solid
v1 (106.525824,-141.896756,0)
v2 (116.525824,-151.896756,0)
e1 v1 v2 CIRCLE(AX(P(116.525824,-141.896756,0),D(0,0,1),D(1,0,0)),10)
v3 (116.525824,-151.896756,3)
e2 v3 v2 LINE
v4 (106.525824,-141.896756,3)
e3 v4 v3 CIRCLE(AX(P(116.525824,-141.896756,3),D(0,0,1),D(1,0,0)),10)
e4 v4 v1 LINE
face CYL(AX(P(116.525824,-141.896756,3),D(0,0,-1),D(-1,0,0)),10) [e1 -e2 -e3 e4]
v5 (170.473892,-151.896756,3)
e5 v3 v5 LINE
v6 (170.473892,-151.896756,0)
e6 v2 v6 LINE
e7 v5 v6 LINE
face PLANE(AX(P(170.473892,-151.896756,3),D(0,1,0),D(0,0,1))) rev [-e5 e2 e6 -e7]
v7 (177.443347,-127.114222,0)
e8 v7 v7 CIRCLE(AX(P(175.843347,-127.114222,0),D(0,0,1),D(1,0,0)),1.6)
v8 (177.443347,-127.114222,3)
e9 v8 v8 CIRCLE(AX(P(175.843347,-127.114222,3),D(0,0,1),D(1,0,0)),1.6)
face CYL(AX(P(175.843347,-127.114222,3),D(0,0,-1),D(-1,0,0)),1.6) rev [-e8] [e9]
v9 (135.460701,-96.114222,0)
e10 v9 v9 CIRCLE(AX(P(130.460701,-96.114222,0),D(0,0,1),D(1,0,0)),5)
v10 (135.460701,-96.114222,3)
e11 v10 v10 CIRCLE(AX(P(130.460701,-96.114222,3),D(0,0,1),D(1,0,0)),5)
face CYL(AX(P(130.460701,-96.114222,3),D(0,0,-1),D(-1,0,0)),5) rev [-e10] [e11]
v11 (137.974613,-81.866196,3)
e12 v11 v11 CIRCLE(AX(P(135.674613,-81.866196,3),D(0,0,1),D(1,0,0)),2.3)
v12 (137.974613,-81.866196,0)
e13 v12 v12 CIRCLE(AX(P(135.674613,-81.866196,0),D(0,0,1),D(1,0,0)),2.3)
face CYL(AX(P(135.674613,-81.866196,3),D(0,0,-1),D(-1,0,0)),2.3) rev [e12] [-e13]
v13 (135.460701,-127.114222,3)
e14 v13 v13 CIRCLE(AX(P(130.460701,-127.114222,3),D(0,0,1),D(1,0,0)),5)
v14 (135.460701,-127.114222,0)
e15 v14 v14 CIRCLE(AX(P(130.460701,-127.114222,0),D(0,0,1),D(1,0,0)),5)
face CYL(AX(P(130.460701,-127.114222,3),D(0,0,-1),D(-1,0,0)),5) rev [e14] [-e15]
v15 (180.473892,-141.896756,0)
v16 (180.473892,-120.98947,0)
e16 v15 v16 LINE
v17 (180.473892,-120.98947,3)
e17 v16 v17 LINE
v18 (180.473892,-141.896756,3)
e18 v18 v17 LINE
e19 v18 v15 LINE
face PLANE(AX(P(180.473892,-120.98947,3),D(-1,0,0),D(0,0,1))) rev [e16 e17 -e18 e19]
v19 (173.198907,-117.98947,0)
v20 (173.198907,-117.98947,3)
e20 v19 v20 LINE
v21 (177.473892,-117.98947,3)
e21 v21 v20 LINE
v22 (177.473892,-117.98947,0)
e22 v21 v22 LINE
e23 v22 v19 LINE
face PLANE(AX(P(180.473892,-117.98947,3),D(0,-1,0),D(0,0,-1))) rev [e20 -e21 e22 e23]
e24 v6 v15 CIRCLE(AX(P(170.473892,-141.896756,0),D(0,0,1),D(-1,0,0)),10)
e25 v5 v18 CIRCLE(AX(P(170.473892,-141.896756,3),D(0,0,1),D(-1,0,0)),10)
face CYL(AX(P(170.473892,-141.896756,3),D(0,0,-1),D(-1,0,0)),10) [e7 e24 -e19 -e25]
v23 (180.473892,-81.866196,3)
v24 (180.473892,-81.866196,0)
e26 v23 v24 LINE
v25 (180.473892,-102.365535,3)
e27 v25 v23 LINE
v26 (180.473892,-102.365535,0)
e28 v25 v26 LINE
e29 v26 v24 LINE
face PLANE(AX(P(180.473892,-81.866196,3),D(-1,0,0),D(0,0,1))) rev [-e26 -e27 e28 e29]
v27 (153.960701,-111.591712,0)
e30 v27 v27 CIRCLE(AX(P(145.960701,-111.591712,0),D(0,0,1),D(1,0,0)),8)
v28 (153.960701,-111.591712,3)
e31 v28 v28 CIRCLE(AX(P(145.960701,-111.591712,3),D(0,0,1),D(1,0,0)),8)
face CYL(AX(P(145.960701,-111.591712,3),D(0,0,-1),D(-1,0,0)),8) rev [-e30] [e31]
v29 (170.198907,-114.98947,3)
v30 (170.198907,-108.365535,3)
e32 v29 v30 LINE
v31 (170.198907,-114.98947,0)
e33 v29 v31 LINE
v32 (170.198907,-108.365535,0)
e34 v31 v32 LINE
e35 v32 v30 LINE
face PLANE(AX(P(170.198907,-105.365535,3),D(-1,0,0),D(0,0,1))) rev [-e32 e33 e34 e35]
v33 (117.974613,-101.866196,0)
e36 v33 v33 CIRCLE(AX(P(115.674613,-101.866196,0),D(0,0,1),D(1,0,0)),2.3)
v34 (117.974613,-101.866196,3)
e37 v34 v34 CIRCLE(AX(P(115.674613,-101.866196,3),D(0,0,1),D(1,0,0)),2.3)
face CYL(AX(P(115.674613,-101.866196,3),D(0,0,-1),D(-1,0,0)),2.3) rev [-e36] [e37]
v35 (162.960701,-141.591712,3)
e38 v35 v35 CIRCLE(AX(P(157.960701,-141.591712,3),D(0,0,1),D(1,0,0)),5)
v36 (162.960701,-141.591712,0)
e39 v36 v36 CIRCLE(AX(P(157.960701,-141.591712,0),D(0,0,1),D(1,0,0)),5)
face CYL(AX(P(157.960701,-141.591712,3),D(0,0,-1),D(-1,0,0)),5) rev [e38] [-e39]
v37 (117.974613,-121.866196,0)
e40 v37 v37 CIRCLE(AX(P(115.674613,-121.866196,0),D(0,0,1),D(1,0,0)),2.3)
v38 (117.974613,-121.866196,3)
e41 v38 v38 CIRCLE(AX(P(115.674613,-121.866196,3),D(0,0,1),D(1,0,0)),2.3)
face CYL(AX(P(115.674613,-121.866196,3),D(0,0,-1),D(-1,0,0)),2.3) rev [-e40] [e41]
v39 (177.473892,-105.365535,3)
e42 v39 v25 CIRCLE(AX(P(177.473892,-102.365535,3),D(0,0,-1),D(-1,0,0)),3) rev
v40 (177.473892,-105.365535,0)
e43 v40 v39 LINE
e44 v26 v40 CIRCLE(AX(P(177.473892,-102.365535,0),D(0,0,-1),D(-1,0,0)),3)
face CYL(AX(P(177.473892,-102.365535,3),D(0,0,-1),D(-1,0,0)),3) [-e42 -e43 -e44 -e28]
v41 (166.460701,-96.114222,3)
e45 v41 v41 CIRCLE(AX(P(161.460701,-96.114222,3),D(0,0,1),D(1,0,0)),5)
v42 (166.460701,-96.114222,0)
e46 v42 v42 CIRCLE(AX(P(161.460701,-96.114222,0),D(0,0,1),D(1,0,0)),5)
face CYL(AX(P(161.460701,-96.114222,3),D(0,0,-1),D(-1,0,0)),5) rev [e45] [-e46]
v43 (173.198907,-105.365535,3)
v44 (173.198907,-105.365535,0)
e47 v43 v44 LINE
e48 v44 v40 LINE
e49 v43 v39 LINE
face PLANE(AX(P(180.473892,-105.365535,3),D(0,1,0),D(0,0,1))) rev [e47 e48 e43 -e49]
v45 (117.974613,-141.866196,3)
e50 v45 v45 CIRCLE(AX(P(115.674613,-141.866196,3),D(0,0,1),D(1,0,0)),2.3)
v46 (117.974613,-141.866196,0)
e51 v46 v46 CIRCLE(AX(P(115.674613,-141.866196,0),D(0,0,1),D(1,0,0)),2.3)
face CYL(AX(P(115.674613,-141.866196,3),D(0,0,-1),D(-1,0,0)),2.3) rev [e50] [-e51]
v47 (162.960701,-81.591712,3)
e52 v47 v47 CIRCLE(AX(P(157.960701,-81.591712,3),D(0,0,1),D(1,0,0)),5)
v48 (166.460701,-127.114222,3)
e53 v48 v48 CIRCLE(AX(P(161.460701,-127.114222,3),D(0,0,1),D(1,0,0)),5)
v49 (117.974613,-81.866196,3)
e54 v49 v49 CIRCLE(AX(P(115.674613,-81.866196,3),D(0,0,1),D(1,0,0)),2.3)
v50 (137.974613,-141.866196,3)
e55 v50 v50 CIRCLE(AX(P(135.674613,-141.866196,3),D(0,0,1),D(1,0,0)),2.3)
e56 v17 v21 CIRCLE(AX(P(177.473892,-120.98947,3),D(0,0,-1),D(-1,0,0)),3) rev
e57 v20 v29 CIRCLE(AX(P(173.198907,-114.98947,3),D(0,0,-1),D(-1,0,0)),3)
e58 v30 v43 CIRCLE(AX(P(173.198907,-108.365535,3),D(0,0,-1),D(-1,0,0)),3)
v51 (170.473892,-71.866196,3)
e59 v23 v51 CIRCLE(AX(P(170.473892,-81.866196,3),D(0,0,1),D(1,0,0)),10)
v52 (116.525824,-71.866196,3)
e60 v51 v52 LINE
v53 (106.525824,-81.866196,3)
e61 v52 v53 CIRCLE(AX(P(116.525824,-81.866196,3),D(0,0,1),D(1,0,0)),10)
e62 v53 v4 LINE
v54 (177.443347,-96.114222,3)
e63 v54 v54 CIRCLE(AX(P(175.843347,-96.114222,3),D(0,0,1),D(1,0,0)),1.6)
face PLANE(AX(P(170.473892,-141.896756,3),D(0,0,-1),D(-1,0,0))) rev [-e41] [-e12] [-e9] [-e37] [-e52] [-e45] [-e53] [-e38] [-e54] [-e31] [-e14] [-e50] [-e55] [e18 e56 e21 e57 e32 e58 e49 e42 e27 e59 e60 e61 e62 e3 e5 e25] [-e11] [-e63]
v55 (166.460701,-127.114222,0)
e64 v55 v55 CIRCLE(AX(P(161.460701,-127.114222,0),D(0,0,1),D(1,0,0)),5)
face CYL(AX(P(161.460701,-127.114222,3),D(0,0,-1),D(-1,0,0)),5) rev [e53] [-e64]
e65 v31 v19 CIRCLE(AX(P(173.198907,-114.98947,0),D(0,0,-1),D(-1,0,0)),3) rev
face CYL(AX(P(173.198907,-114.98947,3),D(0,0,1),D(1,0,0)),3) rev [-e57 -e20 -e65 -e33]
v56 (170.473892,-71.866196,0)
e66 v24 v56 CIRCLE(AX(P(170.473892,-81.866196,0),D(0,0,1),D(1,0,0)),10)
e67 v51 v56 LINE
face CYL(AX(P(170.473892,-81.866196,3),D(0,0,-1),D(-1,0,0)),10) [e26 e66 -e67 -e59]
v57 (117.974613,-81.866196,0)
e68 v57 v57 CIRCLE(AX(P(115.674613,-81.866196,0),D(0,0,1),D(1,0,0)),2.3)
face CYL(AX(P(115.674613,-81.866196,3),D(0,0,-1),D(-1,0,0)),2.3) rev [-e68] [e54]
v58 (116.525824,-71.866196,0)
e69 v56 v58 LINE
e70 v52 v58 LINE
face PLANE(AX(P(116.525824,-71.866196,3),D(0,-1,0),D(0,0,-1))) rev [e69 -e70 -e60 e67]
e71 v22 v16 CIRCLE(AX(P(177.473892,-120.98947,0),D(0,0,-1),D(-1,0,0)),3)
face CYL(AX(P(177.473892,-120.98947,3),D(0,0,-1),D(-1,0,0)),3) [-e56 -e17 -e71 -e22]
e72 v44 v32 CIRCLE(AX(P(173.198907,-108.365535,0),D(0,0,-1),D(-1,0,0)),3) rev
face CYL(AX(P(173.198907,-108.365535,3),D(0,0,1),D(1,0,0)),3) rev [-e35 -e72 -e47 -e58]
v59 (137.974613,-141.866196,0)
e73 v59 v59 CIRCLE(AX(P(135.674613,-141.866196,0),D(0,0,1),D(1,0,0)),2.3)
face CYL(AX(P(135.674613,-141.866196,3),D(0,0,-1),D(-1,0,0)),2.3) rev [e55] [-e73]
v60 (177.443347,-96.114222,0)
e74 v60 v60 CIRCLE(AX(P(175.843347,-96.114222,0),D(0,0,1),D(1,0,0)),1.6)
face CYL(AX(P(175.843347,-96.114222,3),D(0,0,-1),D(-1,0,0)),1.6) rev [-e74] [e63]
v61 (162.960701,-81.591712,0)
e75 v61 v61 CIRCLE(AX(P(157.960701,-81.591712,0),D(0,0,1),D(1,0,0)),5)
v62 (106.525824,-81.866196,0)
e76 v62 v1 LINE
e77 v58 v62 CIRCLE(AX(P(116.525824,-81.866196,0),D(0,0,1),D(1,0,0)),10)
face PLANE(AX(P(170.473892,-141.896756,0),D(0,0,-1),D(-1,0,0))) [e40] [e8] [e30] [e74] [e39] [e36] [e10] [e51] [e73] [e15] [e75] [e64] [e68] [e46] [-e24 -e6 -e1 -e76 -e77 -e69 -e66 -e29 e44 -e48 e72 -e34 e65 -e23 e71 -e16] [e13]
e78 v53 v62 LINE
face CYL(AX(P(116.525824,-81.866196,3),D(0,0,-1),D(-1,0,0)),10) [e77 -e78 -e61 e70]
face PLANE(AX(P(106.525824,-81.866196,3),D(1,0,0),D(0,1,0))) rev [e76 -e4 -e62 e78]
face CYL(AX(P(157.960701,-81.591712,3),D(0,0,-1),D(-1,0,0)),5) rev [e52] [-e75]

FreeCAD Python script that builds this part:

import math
import FreeCAD as App
import Part
import Sketcher
from FreeCAD import Vector
Q = App.Units.Quantity


def edges_at(feature, points):
    """Names of the edges that pass closest to the given points."""
    edges = feature.Shape.Edges
    near = lambda p: min(range(len(edges)), key=lambda i: edges[i].distToShape(Part.Vertex(*p))[0])
    return sorted({f"Edge{near(p) + 1}" for p in points})

doc = App.newDocument("Part")
body = doc.addObject("PartDesign::Body", "Body")

# Sketch on XY plane
sketch1 = doc.addObject("Sketcher::SketchObject", "Sketch")
body.addObject(sketch1)
sketch1.AttachmentSupport = (doc.XY_Plane, [""])
sketch1.MapMode = "FlatFace"
sketch1.addGeometry(Part.ArcOfCircle(Part.Circle(Vector(170.5, -81.9, 0), Vector(0, 0, 1), 10), math.radians(0), math.radians(90)), False)
sketch1.addGeometry(Part.LineSegment(Vector(170.5, -71.9, 0), Vector(116.5, -71.9, 0)), False)
sketch1.addGeometry(Part.ArcOfCircle(Part.Circle(Vector(116.5, -81.9, 0), Vector(0, 0, 1), 10), math.radians(90), math.radians(180)), False)
sketch1.addGeometry(Part.LineSegment(Vector(106.5, -81.9, 0), Vector(106.5, -141.9, 0)), False)
sketch1.addGeometry(Part.ArcOfCircle(Part.Circle(Vector(116.5, -141.9, 0), Vector(0, 0, 1), 10), math.radians(180), math.radians(270)), False)
sketch1.addGeometry(Part.LineSegment(Vector(116.5, -151.9, 0), Vector(170.5, -151.9, 0)), False)
sketch1.addGeometry(Part.ArcOfCircle(Part.Circle(Vector(170.5, -141.9, 0), Vector(0, 0, 1), 10), math.radians(-90), math.radians(0)), False)
sketch1.addGeometry(Part.LineSegment(Vector(180.5, -141.9, 0), Vector(180.5, -118, 0)), False)
sketch1.addGeometry(Part.LineSegment(Vector(180.5, -118, 0), Vector(170.2, -118, 0)), False)
sketch1.addGeometry(Part.LineSegment(Vector(170.2, -118, 0), Vector(170.2, -105.4, 0)), False)
sketch1.addGeometry(Part.LineSegment(Vector(170.2, -105.4, 0), Vector(180.5, -105.4, 0)), False)
sketch1.addGeometry(Part.LineSegment(Vector(180.5, -105.4, 0), Vector(180.5, -81.9, 0)), False)
sketch1.addGeometry(Part.Circle(Vector(158, -141.6, 0), Vector(0, 0, 1), 5), False)
sketch1.addGeometry(Part.Circle(Vector(175.8, -127.1, 0), Vector(0, 0, 1), 1.6), False)
sketch1.addGeometry(Part.Circle(Vector(161.5, -127.1, 0), Vector(0, 0, 1), 5), False)
sketch1.addGeometry(Part.Circle(Vector(146, -111.6, 0), Vector(0, 0, 1), 8), False)
sketch1.addGeometry(Part.Circle(Vector(135.7, -141.9, 0), Vector(0, 0, 1), 2.3), False)
sketch1.addGeometry(Part.Circle(Vector(115.7, -141.9, 0), Vector(0, 0, 1), 2.3), False)
sketch1.addGeometry(Part.Circle(Vector(130.5, -127.1, 0), Vector(0, 0, 1), 5), False)
sketch1.addGeometry(Part.Circle(Vector(115.7, -121.9, 0), Vector(0, 0, 1), 2.3), False)
sketch1.addGeometry(Part.Circle(Vector(175.8, -96.1, 0), Vector(0, 0, 1), 1.6), False)
sketch1.addGeometry(Part.Circle(Vector(161.5, -96.1, 0), Vector(0, 0, 1), 5), False)
sketch1.addGeometry(Part.Circle(Vector(158, -81.6, 0), Vector(0, 0, 1), 5), False)
sketch1.addGeometry(Part.Circle(Vector(130.5, -96.1, 0), Vector(0, 0, 1), 5), False)
sketch1.addGeometry(Part.Circle(Vector(115.7, -101.9, 0), Vector(0, 0, 1), 2.3), False)
sketch1.addGeometry(Part.Circle(Vector(135.7, -81.9, 0), Vector(0, 0, 1), 2.3), False)
sketch1.addGeometry(Part.Circle(Vector(115.7, -81.9, 0), Vector(0, 0, 1), 2.3), False)
sketch1.addConstraint(Sketcher.Constraint("Tangent", 0, 2, 1, 1))
sketch1.addConstraint(Sketcher.Constraint("Tangent", 1, 2, 2, 1))
sketch1.addConstraint(Sketcher.Constraint("Tangent", 2, 2, 3, 1))
sketch1.addConstraint(Sketcher.Constraint("Tangent", 3, 2, 4, 1))
sketch1.addConstraint(Sketcher.Constraint("Tangent", 4, 2, 5, 1))
sketch1.addConstraint(Sketcher.Constraint("Tangent", 5, 2, 6, 1))
sketch1.addConstraint(Sketcher.Constraint("Tangent", 6, 2, 7, 1))
sketch1.addConstraint(Sketcher.Constraint("Coincident", 7, 2, 8, 1))
sketch1.addConstraint(Sketcher.Constraint("Coincident", 8, 2, 9, 1))
sketch1.addConstraint(Sketcher.Constraint("Coincident", 9, 2, 10, 1))
sketch1.addConstraint(Sketcher.Constraint("Coincident", 10, 2, 11, 1))
sketch1.addConstraint(Sketcher.Constraint("Tangent", 11, 2, 0, 1))
sketch1.addConstraint(Sketcher.Constraint("Horizontal", 1))
sketch1.addConstraint(Sketcher.Constraint("Vertical", 3))
sketch1.addConstraint(Sketcher.Constraint("Horizontal", 5))
sketch1.addConstraint(Sketcher.Constraint("Vertical", 7))
sketch1.addConstraint(Sketcher.Constraint("Horizontal", 8))
sketch1.addConstraint(Sketcher.Constraint("Vertical", 9))
sketch1.addConstraint(Sketcher.Constraint("Horizontal", 10))
sketch1.addConstraint(Sketcher.Constraint("Vertical", 11))
sketch1.addConstraint(Sketcher.Constraint("Equal", 0, 2))
sketch1.addConstraint(Sketcher.Constraint("Equal", 2, 4))
sketch1.addConstraint(Sketcher.Constraint("Equal", 4, 6))
sketch1.addConstraint(Sketcher.Constraint("Equal", 12, 14))
sketch1.addConstraint(Sketcher.Constraint("Equal", 16, 17))
sketch1.addConstraint(Sketcher.Constraint("Equal", 14, 18))
sketch1.addConstraint(Sketcher.Constraint("Equal", 17, 19))
sketch1.addConstraint(Sketcher.Constraint("Equal", 13, 20))
sketch1.addConstraint(Sketcher.Constraint("Equal", 18, 21))
sketch1.addConstraint(Sketcher.Constraint("Equal", 21, 22))
sketch1.addConstraint(Sketcher.Constraint("Equal", 22, 23))
sketch1.addConstraint(Sketcher.Constraint("Equal", 19, 24))
sketch1.addConstraint(Sketcher.Constraint("Equal", 24, 25))
sketch1.addConstraint(Sketcher.Constraint("Equal", 25, 26))
sketch1.addConstraint(Sketcher.Constraint("Horizontal", 13, 3, 14, 3))
sketch1.addConstraint(Sketcher.Constraint("Horizontal", 16, 3, 17, 3))
sketch1.addConstraint(Sketcher.Constraint("Horizontal", 14, 3, 18, 3))
sketch1.addConstraint(Sketcher.Constraint("Horizontal", 20, 3, 21, 3))
sketch1.addConstraint(Sketcher.Constraint("Horizontal", 21, 3, 23, 3))
sketch1.addConstraint(Sketcher.Constraint("Horizontal", 2, 3, 25, 3))
sketch1.addConstraint(Sketcher.Constraint("Horizontal", 25, 3, 26, 3))
sketch1.addConstraint(Sketcher.Constraint("Vertical", 0, 3, 6, 3))
sketch1.addConstraint(Sketcher.Constraint("Vertical", 17, 3, 19, 3))
sketch1.addConstraint(Sketcher.Constraint("Vertical", 13, 3, 20, 3))
sketch1.addConstraint(Sketcher.Constraint("Vertical", 14, 3, 21, 3))
sketch1.addConstraint(Sketcher.Constraint("Vertical", 12, 3, 22, 3))
sketch1.addConstraint(Sketcher.Constraint("Vertical", 18, 3, 23, 3))
sketch1.addConstraint(Sketcher.Constraint("Vertical", 19, 3, 24, 3))
sketch1.addConstraint(Sketcher.Constraint("Vertical", 16, 3, 25, 3))
sketch1.addConstraint(Sketcher.Constraint("Vertical", 24, 3, 26, 3))
sketch1.addConstraint(Sketcher.Constraint("Diameter", 12, Q("10 mm")))
sketch1.addConstraint(Sketcher.Constraint("Diameter", 15, Q("16 mm")))
sketch1.addConstraint(Sketcher.Constraint("Radius", 0, Q("10 mm")))
sketch1.addConstraint(Sketcher.Constraint("Diameter", 13, Q("3.2 mm")))
sketch1.addConstraint(Sketcher.Constraint("Diameter", 16, Q("4.6 mm")))
sketch1.addConstraint(Sketcher.Constraint("DistanceX", 15, 3, 12, 3, Q("12 mm")))
sketch1.addConstraint(Sketcher.Constraint("DistanceY", 12, 3, 15, 3, Q("30 mm")))
sketch1.addConstraint(Sketcher.Constraint("DistanceX", 17, 3, 16, 3, Q("20 mm")))
sketch1.addConstraint(Sketcher.Constraint("DistanceX", 18, 3, 14, 3, Q("31 mm")))
sketch1.addConstraint(Sketcher.Constraint("DistanceY", 17, 3, 19, 3, Q("20 mm")))
sketch1.addConstraint(Sketcher.Constraint("DistanceY", 13, 3, 20, 3, Q("31 mm")))
sketch1.addConstraint(Sketcher.Constraint("DistanceY", 15, 3, 22, 3, Q("30 mm")))
sketch1.addConstraint(Sketcher.Constraint("DistanceY", 19, 3, 24, 3, Q("20 mm")))
sketch1.addConstraint(Sketcher.Constraint("DistanceY", 24, 3, 2, 3, Q("20 mm")))
sketch1.addConstraint(Sketcher.Constraint("DistanceX", 12, 3, 14, 3, Q("3.5 mm")))
sketch1.addConstraint(Sketcher.Constraint("DistanceX", 1, 2, 1, 1, Q("53.948069 mm")))
sketch1.addConstraint(Sketcher.Constraint("DistanceY", 3, 2, 3, 1, Q("60.03056 mm")))
sketch1.addConstraint(Sketcher.Constraint("DistanceY", 11, 1, 11, 2, Q("23.499339 mm")))
sketch1.addConstraint(Sketcher.Constraint("DistanceX", -1, 1, 12, 3, Q("157.960701 mm")))
sketch1.addConstraint(Sketcher.Constraint("DistanceX", 8, 2, 8, 1, Q("10.274985 mm")))
sketch1.addConstraint(Sketcher.Constraint("DistanceY", 7, 1, 7, 2, Q("23.907287 mm")))
sketch1.addConstraint(Sketcher.Constraint("DistanceY", 13, 3, -1, 1, Q("127.114222 mm")))
sketch1.addConstraint(Sketcher.Constraint("DistanceY", 7, 2, -1, 1, Q("117.98947 mm")))
sketch1.addConstraint(Sketcher.Constraint("DistanceX", 12, 3, 6, 3, Q("12.513192 mm")))
sketch1.addConstraint(Sketcher.Constraint("DistanceY", 12, 3, 13, 3, Q("14.47749 mm")))
sketch1.addConstraint(Sketcher.Constraint("DistanceX", 4, 3, 16, 3, Q("19.148789 mm")))
sketch1.addConstraint(Sketcher.Constraint("DistanceX", 8, 2, 13, 3, Q("5.64444 mm")))
pad1 = doc.addObject("PartDesign::Pad", "Pad")
body.addObject(pad1)
pad1.Profile = sketch1
pad1.Length = 3
doc.recompute()

fillet = doc.addObject("PartDesign::Fillet", "Fillet")
body.addObject(fillet)
fillet.Base = (pad1, edges_at(pad1, [
    (180.474, -105.366, 1.5),
    (170.199, -105.366, 1.5),
    (170.199, -117.989, 1.5),
    (180.474, -117.989, 1.5),
]))
fillet.Radius = 3

doc.recompute()
